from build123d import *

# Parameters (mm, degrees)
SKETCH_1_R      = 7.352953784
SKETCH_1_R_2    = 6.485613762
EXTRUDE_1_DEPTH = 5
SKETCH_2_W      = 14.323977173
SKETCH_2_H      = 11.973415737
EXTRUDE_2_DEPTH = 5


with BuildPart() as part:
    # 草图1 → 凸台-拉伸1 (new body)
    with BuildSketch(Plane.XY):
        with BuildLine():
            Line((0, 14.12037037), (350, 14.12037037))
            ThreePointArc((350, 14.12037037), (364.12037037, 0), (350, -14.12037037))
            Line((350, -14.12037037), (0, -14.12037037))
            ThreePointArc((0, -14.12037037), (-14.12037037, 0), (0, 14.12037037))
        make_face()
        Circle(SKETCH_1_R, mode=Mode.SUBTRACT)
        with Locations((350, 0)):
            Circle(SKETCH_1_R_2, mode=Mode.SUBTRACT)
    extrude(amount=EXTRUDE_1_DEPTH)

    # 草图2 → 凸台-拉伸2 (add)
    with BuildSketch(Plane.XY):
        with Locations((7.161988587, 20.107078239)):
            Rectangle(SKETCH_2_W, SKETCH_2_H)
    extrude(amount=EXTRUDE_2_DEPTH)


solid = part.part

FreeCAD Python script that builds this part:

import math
import FreeCAD as App
import Part
import Sketcher

V = App.Vector

doc = App.newDocument("Part")
body = doc.addObject("PartDesign::Body", "Body")

# Sketch on XY plane
sketch1 = body.newObject("Sketcher::SketchObject", "Sketch")
sketch1.AttachmentSupport = (doc.getObject("XY_Plane"), [""])
sketch1.MapMode = "FlatFace"
sketch1.addGeometry([
    Part.LineSegment(V(350, 14, 0), V(0, 14, 0)),  # 0
    Part.ArcOfCircle(Part.Circle(V(0, 0, 0), V(0, 0, 1), 14), math.radians(90), math.radians(270)),  # 1
    Part.LineSegment(V(0, -14, 0), V(350, -14, 0)),  # 2
    Part.ArcOfCircle(Part.Circle(V(350, 0, 0), V(0, 0, 1), 14), math.radians(-90), math.radians(90)),  # 3
    Part.Circle(V(350, 0, 0), V(0, 0, 1), 6),  # 4
    Part.Circle(V(0, 0, 0), V(0, 0, 1), 7),  # 5
], False)
sketch1.addConstraint([
    Sketcher.Constraint("Tangent", 0, 2, 1, 1),
    Sketcher.Constraint("Tangent", 1, 2, 2, 1),
    Sketcher.Constraint("Tangent", 2, 2, 3, 1),
    Sketcher.Constraint("Tangent", 3, 2, 0, 1),
    Sketcher.Constraint("Horizontal", 0),
    Sketcher.Constraint("Horizontal", 2),
    Sketcher.Constraint("Coincident", 1, 3, -1, 1),
    Sketcher.Constraint("Coincident", 5, 3, -1, 1),
    Sketcher.Constraint("Coincident", 4, 3, 3, 3),
    Sketcher.Constraint("DistanceX", 0, 2, 0, 1, 350.0),
    Sketcher.Constraint("Radius", 1, 14.12037),
    Sketcher.Constraint("Diameter", 4, 12.971228),
    Sketcher.Constraint("Diameter", 5, 14.705908),
])
pad1 = body.newObject("PartDesign::Pad", "Pad")
pad1.Profile = sketch1
pad1.Length = 5

# Sketch on XY plane
sketch2 = body.newObject("Sketcher::SketchObject", "Sketch001")
sketch2.AttachmentSupport = (doc.getObject("XY_Plane"), [""])
sketch2.MapMode = "FlatFace"
sketch2.addGeometry([
    Part.LineSegment(V(0, 26, 0), V(0, 14, 0)),
    Part.LineSegment(V(0, 14, 0), V(14, 14, 0)),
    Part.LineSegment(V(14, 14, 0), V(14, 26, 0)),
    Part.LineSegment(V(14, 26, 0), V(0, 26, 0)),
], False)
sketch2.addConstraint([
    Sketcher.Constraint("Coincident", 0, 2, 1, 1),
    Sketcher.Constraint("Coincident", 1, 2, 2, 1),
    Sketcher.Constraint("Coincident", 2, 2, 3, 1),
    Sketcher.Constraint("Coincident", 3, 2, 0, 1),
    Sketcher.Constraint("Vertical", 0),
    Sketcher.Constraint("Horizontal", 1),
    Sketcher.Constraint("Vertical", 2),
    Sketcher.Constraint("Horizontal", 3),
    Sketcher.Constraint("PointOnObject", 0, 2, -2),
    Sketcher.Constraint("DistanceX", 1, 1, 1, 2, 14.323977),
    Sketcher.Constraint("DistanceY", 0, 2, 0, 1, 11.973416),
    Sketcher.Constraint("DistanceY", -1, 1, 0, 2, 14.12037),
])
pad2 = body.newObject("PartDesign::Pad", "Pad001")
pad2.Profile = sketch2
pad2.Length = 5

doc.recompute()
